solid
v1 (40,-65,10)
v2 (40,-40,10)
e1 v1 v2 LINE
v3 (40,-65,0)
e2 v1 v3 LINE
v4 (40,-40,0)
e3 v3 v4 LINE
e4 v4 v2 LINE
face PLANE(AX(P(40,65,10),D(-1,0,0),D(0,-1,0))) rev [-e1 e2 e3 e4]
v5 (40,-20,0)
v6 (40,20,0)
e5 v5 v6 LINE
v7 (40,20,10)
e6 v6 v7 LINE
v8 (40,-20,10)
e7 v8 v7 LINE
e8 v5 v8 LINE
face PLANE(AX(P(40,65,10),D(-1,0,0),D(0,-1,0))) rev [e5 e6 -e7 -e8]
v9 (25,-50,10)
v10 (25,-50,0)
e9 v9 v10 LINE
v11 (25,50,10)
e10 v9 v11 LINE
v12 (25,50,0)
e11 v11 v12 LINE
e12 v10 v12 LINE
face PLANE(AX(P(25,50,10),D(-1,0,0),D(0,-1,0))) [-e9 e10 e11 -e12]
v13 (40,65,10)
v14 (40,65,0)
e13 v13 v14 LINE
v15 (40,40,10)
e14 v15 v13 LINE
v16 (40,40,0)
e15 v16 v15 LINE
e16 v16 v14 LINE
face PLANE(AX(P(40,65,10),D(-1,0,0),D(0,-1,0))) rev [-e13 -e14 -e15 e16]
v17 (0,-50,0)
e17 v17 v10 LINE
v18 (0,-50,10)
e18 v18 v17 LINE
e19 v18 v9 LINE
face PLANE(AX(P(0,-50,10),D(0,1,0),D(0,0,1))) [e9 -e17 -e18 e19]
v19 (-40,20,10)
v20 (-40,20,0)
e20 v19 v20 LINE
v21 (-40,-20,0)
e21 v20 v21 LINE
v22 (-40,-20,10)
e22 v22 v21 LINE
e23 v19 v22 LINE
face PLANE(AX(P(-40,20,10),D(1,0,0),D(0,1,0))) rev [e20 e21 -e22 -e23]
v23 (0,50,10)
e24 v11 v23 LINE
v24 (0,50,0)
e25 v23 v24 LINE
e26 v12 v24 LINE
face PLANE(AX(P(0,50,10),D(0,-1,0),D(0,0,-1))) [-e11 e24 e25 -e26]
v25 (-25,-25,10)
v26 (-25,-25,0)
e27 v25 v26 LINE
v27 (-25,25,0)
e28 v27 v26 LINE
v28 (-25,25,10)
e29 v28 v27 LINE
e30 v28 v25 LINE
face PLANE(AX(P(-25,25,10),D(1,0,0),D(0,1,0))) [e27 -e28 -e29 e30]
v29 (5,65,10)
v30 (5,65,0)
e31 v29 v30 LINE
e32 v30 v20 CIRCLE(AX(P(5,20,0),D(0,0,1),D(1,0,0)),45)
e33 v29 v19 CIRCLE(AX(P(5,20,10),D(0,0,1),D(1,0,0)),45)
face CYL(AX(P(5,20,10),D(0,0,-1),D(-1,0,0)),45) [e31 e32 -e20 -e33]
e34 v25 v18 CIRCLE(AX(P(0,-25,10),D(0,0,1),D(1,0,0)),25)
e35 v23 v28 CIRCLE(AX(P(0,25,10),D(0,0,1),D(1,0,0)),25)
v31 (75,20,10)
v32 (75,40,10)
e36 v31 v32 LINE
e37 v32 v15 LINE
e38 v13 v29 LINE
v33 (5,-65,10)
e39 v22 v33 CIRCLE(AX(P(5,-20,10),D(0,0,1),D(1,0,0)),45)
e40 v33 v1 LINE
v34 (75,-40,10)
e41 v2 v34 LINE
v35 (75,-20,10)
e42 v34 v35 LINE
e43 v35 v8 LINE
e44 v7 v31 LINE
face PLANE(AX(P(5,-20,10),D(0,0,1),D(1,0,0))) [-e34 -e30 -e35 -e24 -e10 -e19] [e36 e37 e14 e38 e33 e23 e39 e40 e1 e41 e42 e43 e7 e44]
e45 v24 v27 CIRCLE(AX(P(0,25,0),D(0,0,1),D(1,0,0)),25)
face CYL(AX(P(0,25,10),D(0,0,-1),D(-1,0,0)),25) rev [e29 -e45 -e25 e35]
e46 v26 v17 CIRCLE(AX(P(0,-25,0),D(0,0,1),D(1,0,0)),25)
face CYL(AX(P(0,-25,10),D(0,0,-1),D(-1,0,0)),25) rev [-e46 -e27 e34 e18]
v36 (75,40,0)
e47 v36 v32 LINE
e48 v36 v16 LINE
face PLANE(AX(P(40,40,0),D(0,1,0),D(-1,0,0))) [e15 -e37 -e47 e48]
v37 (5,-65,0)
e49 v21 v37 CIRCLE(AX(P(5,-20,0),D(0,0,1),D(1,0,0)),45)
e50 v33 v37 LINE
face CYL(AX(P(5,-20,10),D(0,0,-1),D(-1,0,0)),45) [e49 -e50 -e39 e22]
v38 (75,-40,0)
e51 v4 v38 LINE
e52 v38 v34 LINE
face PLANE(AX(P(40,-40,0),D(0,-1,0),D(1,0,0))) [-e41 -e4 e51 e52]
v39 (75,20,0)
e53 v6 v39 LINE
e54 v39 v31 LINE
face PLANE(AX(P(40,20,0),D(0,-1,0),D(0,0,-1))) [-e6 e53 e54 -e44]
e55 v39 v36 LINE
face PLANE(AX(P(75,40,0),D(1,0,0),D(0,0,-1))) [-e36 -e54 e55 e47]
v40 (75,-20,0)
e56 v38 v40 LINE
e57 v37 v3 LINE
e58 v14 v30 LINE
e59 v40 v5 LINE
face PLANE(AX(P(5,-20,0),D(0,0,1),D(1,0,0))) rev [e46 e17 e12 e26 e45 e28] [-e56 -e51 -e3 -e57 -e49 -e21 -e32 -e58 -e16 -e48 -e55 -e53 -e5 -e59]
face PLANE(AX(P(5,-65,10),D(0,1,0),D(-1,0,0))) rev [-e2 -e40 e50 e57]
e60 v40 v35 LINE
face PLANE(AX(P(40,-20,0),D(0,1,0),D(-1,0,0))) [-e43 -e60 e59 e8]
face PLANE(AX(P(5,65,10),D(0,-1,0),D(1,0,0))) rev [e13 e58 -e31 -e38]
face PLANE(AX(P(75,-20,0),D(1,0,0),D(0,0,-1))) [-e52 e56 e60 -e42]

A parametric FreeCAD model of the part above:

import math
import FreeCAD as App
import Part
import Sketcher
Q = App.Units.Quantity


def add_polygon(sketch, points):
    """Adds a closed chain of lines whose ends are joined by coincident constraints."""
    first, n = sketch.GeometryCount, len(points)
    for a, b in zip(points, points[1:] + points[:1]):
        sketch.addGeometry(Part.LineSegment(App.Vector(*a, 0), App.Vector(*b, 0)), False)
    for i in range(n):
        sketch.addConstraint(Sketcher.Constraint("Coincident", first + i, 2, first + (i + 1) % n, 1))

doc = App.newDocument("Part")
body = doc.addObject("PartDesign::Body", "Body")

sketch1 = body.newObject("Sketcher::SketchObject", "Sketch")
sketch1.AttachmentSupport = (doc.getObject("XY_Plane"), [""])
sketch1.MapMode = "FlatFace"
sketch1.addGeometry([
    Part.LineSegment(App.Vector(40, 65, 0), App.Vector(5, 65, 0)),
    Part.ArcOfCircle(Part.Circle(App.Vector(5, 20, 0), App.Vector(0, 0, 1), 45), math.radians(90), math.radians(180)),
    Part.LineSegment(App.Vector(-40, 20, 0), App.Vector(-40, -20, 0)),
    Part.ArcOfCircle(Part.Circle(App.Vector(5, -20, 0), App.Vector(0, 0, 1), 45), math.radians(-180), math.radians(-90)),
    Part.LineSegment(App.Vector(5, -65, 0), App.Vector(40, -65, 0)),
    Part.LineSegment(App.Vector(40, -65, 0), App.Vector(40, 65, 0)),
    Part.LineSegment(App.Vector(0, 50, 0), App.Vector(25, 50, 0)),
    Part.LineSegment(App.Vector(25, 50, 0), App.Vector(25, -50, 0)),
    Part.LineSegment(App.Vector(25, -50, 0), App.Vector(0, -50, 0)),
    Part.ArcOfCircle(Part.Circle(App.Vector(0, -25, 0), App.Vector(0, 0, 1), 25), math.radians(180), math.radians(270)),
    Part.LineSegment(App.Vector(-25, -25, 0), App.Vector(-25, 25, 0)),
    Part.ArcOfCircle(Part.Circle(App.Vector(0, 25, 0), App.Vector(0, 0, 1), 25), math.radians(90), math.radians(180)),
], False)
sketch1.addConstraint([
    Sketcher.Constraint("Tangent", 0, 2, 1, 1),
    Sketcher.Constraint("Tangent", 1, 2, 2, 1),
    Sketcher.Constraint("Tangent", 2, 2, 3, 1),
    Sketcher.Constraint("Tangent", 3, 2, 4, 1),
    Sketcher.Constraint("Coincident", 4, 2, 5, 1),
    Sketcher.Constraint("Coincident", 5, 2, 0, 1),
    Sketcher.Constraint("Coincident", 6, 2, 7, 1),
    Sketcher.Constraint("Coincident", 7, 2, 8, 1),
    Sketcher.Constraint("Tangent", 8, 2, 9, 2),
    Sketcher.Constraint("Tangent", 9, 1, 10, 1),
    Sketcher.Constraint("Tangent", 10, 2, 11, 2),
    Sketcher.Constraint("Tangent", 11, 1, 6, 1),
    Sketcher.Constraint("Horizontal", 0),
    Sketcher.Constraint("Vertical", 2),
    Sketcher.Constraint("Horizontal", 4),
    Sketcher.Constraint("Vertical", 5),
    Sketcher.Constraint("Horizontal", 6),
    Sketcher.Constraint("Vertical", 7),
    Sketcher.Constraint("Horizontal", 8),
    Sketcher.Constraint("Vertical", 10),
    Sketcher.Constraint("Equal", 1, 3),
    Sketcher.Constraint("Equal", 9, 11),
    Sketcher.Constraint("Symmetric", 9, 3, 11, 3, -1, 1),
    Sketcher.Constraint("Radius", 1, Q("45 mm")),
    Sketcher.Constraint("Radius", 9, Q("25 mm")),
    Sketcher.Constraint("DistanceX", 0, 2, 0, 1, Q("35 mm")),
    Sketcher.Constraint("DistanceX", 6, 1, 6, 2, Q("25 mm")),
    Sketcher.Constraint("DistanceY", 2, 2, 2, 1, Q("40 mm")),
    Sketcher.Constraint("DistanceY", 7, 2, 7, 1, Q("100 mm")),
    Sketcher.Constraint("DistanceX", -1, 1, 1, 3, Q("5 mm")),
    Sketcher.Constraint("DistanceY", -1, 1, 1, 3, Q("20 mm")),
])
pad1 = body.newObject("PartDesign::Pad", "Pad")
pad1.Profile = sketch1
pad1.Length = 10

sketch2 = body.newObject("Sketcher::SketchObject", "Sketch001")
sketch2.AttachmentSupport = (doc.getObject("XY_Plane"), [""])
sketch2.MapMode = "FlatFace"
sketch2.AttachmentOffset = App.Placement(App.Vector(0, 0, 10), App.Rotation())
add_polygon(sketch2, [(40, 40), (40, 20), (75, 20), (75, 40)])
add_polygon(sketch2, [(40, -20), (40, -40), (75, -40), (75, -20)])
sketch2.addConstraint([
    Sketcher.Constraint("Vertical", 0),
    Sketcher.Constraint("Horizontal", 1),
    Sketcher.Constraint("Vertical", 2),
    Sketcher.Constraint("Horizontal", 3),
    Sketcher.Constraint("Vertical", 4),
    Sketcher.Constraint("Horizontal", 5),
    Sketcher.Constraint("Vertical", 6),
    Sketcher.Constraint("Horizontal", 7),
    Sketcher.Constraint("Symmetric", 3, 2, 4, 2, -1),
    Sketcher.Constraint("Symmetric", 1, 2, 6, 2, -1),
    Sketcher.Constraint("DistanceX", 1, 1, 1, 2, Q("35 mm")),
    Sketcher.Constraint("DistanceY", 0, 2, 0, 1, Q("20 mm")),
    Sketcher.Constraint("DistanceX", -1, 1, 0, 2, Q("40 mm")),
    Sketcher.Constraint("DistanceY", -1, 1, 0, 2, Q("20 mm")),
])
pad2 = body.newObject("PartDesign::Pad", "Pad001")
pad2.Profile = sketch2
pad2.Length = 10
pad2.Reversed = True

doc.recompute()
